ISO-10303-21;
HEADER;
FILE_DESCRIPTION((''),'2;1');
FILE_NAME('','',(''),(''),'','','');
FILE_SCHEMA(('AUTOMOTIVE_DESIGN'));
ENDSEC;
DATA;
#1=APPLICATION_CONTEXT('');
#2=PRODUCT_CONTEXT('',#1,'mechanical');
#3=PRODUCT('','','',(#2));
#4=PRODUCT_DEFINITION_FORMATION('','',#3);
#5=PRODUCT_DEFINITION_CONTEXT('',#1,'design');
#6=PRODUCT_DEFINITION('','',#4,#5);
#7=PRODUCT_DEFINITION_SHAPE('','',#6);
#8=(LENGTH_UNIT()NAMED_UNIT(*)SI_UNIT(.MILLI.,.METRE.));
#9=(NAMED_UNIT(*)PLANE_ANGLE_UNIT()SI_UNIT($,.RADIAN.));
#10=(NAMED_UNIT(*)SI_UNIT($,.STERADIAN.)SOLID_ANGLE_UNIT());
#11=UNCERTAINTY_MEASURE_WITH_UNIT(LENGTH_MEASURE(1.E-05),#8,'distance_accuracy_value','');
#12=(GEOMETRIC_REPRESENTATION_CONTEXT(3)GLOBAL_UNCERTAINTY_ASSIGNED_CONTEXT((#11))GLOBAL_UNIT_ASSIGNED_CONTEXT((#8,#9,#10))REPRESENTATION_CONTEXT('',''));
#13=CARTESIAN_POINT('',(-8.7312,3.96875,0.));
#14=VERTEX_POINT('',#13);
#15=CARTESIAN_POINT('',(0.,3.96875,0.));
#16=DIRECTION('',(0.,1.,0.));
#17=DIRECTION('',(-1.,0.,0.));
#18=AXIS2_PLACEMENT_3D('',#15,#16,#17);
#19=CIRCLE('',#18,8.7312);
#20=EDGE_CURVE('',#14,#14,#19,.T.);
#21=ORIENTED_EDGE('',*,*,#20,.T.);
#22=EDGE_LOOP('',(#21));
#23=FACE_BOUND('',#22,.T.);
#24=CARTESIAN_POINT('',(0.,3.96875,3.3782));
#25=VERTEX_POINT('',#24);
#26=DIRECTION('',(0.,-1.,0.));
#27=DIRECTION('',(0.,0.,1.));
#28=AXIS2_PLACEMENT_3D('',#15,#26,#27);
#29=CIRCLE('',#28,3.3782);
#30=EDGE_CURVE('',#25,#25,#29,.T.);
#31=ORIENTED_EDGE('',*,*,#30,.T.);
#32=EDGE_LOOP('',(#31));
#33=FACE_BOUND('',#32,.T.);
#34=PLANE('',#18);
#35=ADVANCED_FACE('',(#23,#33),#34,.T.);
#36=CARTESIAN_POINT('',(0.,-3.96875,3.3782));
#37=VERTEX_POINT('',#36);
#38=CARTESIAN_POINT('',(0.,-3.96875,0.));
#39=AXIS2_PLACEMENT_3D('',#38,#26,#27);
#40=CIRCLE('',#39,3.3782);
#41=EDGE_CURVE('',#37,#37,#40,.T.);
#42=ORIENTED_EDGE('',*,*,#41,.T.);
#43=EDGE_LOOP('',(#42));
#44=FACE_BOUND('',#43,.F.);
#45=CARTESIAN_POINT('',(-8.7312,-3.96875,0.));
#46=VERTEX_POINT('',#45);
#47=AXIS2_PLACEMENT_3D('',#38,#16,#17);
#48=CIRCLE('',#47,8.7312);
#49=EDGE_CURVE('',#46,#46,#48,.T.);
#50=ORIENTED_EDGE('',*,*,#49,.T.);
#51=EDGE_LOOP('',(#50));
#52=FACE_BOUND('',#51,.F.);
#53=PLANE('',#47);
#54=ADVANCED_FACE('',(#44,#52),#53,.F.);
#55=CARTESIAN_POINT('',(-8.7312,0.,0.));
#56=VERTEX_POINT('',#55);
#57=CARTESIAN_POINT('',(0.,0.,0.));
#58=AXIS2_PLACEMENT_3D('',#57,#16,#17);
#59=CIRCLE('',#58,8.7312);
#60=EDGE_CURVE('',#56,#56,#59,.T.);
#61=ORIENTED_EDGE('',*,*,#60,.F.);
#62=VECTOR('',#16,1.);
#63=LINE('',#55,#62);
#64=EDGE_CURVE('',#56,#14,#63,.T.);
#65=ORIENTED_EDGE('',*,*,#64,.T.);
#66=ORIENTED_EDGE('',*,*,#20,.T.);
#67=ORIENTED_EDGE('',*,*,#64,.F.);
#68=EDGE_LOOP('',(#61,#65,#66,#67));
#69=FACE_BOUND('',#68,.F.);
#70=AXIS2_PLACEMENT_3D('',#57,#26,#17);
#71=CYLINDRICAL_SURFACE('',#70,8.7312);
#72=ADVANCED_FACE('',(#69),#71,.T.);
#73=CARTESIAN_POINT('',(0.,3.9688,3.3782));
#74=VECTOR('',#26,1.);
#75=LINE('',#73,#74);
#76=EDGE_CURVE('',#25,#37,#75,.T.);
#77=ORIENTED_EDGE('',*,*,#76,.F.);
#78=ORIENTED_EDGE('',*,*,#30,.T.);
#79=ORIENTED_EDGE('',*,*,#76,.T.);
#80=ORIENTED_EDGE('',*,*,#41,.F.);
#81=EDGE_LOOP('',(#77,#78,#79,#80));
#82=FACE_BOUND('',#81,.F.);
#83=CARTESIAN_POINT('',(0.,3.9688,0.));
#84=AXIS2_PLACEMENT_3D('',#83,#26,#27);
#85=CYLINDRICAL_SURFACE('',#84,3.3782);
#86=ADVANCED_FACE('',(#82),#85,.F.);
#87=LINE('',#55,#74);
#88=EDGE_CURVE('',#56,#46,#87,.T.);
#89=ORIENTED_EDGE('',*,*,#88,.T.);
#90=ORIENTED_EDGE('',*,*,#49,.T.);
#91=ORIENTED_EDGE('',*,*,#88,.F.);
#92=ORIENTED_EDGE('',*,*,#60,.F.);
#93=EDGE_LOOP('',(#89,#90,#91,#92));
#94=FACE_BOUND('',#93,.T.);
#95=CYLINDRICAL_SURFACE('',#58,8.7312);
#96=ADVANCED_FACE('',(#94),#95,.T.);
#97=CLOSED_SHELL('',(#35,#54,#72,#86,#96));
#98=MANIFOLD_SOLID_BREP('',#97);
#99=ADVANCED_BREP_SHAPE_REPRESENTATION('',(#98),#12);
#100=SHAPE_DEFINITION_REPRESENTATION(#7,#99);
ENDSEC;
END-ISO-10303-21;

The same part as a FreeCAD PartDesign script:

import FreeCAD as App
import Part
import Sketcher
Q = App.Units.Quantity

doc = App.newDocument("Part")
body = doc.addObject("PartDesign::Body", "Body")

sketch1 = doc.addObject("Sketcher::SketchObject", "Sketch")
body.addObject(sketch1)
sketch1.AttachmentSupport = (doc.XZ_Plane, [""])
sketch1.MapMode = "FlatFace"
sketch1.addGeometry(Part.Circle(App.Vector(0, 0, 0), App.Vector(0, 0, 1), 9), False)
sketch1.addConstraint(Sketcher.Constraint("Coincident", 0, 3, -1, 1))
sketch1.addConstraint(Sketcher.Constraint("Diameter", 0, Q("0.6875 in")))
pad1 = doc.addObject("PartDesign::Pad", "Pad")
body.addObject(pad1)
pad1.Profile = sketch1
pad1.Length = Q("0.3125 in")
pad1.Midplane = True

sketch2 = doc.addObject("Sketcher::SketchObject", "Sketch001")
body.addObject(sketch2)
sketch2.AttachmentSupport = (doc.XZ_Plane, [""])
sketch2.MapMode = "FlatFace"
sketch2.AttachmentOffset = App.Placement(App.Vector(0, 0, -0.156252 * 25.4), App.Rotation())
sketch2.addGeometry(Part.Circle(App.Vector(0, 0, 0), App.Vector(0, 0, 1), 3.4), False)
sketch2.addConstraint(Sketcher.Constraint("Coincident", 0, 3, -1, 1))
sketch2.addConstraint(Sketcher.Constraint("Diameter", 0, Q("0.266 in")))
doc.recompute()
hole = doc.addObject("PartDesign::Hole", "Hole")
body.addObject(hole)
hole.Profile = sketch2
hole.ThreadType = "None"
hole.Diameter = Q("0.266 in")
hole.DepthType = "ThroughAll"
hole.Reversed = True

doc.recompute()
